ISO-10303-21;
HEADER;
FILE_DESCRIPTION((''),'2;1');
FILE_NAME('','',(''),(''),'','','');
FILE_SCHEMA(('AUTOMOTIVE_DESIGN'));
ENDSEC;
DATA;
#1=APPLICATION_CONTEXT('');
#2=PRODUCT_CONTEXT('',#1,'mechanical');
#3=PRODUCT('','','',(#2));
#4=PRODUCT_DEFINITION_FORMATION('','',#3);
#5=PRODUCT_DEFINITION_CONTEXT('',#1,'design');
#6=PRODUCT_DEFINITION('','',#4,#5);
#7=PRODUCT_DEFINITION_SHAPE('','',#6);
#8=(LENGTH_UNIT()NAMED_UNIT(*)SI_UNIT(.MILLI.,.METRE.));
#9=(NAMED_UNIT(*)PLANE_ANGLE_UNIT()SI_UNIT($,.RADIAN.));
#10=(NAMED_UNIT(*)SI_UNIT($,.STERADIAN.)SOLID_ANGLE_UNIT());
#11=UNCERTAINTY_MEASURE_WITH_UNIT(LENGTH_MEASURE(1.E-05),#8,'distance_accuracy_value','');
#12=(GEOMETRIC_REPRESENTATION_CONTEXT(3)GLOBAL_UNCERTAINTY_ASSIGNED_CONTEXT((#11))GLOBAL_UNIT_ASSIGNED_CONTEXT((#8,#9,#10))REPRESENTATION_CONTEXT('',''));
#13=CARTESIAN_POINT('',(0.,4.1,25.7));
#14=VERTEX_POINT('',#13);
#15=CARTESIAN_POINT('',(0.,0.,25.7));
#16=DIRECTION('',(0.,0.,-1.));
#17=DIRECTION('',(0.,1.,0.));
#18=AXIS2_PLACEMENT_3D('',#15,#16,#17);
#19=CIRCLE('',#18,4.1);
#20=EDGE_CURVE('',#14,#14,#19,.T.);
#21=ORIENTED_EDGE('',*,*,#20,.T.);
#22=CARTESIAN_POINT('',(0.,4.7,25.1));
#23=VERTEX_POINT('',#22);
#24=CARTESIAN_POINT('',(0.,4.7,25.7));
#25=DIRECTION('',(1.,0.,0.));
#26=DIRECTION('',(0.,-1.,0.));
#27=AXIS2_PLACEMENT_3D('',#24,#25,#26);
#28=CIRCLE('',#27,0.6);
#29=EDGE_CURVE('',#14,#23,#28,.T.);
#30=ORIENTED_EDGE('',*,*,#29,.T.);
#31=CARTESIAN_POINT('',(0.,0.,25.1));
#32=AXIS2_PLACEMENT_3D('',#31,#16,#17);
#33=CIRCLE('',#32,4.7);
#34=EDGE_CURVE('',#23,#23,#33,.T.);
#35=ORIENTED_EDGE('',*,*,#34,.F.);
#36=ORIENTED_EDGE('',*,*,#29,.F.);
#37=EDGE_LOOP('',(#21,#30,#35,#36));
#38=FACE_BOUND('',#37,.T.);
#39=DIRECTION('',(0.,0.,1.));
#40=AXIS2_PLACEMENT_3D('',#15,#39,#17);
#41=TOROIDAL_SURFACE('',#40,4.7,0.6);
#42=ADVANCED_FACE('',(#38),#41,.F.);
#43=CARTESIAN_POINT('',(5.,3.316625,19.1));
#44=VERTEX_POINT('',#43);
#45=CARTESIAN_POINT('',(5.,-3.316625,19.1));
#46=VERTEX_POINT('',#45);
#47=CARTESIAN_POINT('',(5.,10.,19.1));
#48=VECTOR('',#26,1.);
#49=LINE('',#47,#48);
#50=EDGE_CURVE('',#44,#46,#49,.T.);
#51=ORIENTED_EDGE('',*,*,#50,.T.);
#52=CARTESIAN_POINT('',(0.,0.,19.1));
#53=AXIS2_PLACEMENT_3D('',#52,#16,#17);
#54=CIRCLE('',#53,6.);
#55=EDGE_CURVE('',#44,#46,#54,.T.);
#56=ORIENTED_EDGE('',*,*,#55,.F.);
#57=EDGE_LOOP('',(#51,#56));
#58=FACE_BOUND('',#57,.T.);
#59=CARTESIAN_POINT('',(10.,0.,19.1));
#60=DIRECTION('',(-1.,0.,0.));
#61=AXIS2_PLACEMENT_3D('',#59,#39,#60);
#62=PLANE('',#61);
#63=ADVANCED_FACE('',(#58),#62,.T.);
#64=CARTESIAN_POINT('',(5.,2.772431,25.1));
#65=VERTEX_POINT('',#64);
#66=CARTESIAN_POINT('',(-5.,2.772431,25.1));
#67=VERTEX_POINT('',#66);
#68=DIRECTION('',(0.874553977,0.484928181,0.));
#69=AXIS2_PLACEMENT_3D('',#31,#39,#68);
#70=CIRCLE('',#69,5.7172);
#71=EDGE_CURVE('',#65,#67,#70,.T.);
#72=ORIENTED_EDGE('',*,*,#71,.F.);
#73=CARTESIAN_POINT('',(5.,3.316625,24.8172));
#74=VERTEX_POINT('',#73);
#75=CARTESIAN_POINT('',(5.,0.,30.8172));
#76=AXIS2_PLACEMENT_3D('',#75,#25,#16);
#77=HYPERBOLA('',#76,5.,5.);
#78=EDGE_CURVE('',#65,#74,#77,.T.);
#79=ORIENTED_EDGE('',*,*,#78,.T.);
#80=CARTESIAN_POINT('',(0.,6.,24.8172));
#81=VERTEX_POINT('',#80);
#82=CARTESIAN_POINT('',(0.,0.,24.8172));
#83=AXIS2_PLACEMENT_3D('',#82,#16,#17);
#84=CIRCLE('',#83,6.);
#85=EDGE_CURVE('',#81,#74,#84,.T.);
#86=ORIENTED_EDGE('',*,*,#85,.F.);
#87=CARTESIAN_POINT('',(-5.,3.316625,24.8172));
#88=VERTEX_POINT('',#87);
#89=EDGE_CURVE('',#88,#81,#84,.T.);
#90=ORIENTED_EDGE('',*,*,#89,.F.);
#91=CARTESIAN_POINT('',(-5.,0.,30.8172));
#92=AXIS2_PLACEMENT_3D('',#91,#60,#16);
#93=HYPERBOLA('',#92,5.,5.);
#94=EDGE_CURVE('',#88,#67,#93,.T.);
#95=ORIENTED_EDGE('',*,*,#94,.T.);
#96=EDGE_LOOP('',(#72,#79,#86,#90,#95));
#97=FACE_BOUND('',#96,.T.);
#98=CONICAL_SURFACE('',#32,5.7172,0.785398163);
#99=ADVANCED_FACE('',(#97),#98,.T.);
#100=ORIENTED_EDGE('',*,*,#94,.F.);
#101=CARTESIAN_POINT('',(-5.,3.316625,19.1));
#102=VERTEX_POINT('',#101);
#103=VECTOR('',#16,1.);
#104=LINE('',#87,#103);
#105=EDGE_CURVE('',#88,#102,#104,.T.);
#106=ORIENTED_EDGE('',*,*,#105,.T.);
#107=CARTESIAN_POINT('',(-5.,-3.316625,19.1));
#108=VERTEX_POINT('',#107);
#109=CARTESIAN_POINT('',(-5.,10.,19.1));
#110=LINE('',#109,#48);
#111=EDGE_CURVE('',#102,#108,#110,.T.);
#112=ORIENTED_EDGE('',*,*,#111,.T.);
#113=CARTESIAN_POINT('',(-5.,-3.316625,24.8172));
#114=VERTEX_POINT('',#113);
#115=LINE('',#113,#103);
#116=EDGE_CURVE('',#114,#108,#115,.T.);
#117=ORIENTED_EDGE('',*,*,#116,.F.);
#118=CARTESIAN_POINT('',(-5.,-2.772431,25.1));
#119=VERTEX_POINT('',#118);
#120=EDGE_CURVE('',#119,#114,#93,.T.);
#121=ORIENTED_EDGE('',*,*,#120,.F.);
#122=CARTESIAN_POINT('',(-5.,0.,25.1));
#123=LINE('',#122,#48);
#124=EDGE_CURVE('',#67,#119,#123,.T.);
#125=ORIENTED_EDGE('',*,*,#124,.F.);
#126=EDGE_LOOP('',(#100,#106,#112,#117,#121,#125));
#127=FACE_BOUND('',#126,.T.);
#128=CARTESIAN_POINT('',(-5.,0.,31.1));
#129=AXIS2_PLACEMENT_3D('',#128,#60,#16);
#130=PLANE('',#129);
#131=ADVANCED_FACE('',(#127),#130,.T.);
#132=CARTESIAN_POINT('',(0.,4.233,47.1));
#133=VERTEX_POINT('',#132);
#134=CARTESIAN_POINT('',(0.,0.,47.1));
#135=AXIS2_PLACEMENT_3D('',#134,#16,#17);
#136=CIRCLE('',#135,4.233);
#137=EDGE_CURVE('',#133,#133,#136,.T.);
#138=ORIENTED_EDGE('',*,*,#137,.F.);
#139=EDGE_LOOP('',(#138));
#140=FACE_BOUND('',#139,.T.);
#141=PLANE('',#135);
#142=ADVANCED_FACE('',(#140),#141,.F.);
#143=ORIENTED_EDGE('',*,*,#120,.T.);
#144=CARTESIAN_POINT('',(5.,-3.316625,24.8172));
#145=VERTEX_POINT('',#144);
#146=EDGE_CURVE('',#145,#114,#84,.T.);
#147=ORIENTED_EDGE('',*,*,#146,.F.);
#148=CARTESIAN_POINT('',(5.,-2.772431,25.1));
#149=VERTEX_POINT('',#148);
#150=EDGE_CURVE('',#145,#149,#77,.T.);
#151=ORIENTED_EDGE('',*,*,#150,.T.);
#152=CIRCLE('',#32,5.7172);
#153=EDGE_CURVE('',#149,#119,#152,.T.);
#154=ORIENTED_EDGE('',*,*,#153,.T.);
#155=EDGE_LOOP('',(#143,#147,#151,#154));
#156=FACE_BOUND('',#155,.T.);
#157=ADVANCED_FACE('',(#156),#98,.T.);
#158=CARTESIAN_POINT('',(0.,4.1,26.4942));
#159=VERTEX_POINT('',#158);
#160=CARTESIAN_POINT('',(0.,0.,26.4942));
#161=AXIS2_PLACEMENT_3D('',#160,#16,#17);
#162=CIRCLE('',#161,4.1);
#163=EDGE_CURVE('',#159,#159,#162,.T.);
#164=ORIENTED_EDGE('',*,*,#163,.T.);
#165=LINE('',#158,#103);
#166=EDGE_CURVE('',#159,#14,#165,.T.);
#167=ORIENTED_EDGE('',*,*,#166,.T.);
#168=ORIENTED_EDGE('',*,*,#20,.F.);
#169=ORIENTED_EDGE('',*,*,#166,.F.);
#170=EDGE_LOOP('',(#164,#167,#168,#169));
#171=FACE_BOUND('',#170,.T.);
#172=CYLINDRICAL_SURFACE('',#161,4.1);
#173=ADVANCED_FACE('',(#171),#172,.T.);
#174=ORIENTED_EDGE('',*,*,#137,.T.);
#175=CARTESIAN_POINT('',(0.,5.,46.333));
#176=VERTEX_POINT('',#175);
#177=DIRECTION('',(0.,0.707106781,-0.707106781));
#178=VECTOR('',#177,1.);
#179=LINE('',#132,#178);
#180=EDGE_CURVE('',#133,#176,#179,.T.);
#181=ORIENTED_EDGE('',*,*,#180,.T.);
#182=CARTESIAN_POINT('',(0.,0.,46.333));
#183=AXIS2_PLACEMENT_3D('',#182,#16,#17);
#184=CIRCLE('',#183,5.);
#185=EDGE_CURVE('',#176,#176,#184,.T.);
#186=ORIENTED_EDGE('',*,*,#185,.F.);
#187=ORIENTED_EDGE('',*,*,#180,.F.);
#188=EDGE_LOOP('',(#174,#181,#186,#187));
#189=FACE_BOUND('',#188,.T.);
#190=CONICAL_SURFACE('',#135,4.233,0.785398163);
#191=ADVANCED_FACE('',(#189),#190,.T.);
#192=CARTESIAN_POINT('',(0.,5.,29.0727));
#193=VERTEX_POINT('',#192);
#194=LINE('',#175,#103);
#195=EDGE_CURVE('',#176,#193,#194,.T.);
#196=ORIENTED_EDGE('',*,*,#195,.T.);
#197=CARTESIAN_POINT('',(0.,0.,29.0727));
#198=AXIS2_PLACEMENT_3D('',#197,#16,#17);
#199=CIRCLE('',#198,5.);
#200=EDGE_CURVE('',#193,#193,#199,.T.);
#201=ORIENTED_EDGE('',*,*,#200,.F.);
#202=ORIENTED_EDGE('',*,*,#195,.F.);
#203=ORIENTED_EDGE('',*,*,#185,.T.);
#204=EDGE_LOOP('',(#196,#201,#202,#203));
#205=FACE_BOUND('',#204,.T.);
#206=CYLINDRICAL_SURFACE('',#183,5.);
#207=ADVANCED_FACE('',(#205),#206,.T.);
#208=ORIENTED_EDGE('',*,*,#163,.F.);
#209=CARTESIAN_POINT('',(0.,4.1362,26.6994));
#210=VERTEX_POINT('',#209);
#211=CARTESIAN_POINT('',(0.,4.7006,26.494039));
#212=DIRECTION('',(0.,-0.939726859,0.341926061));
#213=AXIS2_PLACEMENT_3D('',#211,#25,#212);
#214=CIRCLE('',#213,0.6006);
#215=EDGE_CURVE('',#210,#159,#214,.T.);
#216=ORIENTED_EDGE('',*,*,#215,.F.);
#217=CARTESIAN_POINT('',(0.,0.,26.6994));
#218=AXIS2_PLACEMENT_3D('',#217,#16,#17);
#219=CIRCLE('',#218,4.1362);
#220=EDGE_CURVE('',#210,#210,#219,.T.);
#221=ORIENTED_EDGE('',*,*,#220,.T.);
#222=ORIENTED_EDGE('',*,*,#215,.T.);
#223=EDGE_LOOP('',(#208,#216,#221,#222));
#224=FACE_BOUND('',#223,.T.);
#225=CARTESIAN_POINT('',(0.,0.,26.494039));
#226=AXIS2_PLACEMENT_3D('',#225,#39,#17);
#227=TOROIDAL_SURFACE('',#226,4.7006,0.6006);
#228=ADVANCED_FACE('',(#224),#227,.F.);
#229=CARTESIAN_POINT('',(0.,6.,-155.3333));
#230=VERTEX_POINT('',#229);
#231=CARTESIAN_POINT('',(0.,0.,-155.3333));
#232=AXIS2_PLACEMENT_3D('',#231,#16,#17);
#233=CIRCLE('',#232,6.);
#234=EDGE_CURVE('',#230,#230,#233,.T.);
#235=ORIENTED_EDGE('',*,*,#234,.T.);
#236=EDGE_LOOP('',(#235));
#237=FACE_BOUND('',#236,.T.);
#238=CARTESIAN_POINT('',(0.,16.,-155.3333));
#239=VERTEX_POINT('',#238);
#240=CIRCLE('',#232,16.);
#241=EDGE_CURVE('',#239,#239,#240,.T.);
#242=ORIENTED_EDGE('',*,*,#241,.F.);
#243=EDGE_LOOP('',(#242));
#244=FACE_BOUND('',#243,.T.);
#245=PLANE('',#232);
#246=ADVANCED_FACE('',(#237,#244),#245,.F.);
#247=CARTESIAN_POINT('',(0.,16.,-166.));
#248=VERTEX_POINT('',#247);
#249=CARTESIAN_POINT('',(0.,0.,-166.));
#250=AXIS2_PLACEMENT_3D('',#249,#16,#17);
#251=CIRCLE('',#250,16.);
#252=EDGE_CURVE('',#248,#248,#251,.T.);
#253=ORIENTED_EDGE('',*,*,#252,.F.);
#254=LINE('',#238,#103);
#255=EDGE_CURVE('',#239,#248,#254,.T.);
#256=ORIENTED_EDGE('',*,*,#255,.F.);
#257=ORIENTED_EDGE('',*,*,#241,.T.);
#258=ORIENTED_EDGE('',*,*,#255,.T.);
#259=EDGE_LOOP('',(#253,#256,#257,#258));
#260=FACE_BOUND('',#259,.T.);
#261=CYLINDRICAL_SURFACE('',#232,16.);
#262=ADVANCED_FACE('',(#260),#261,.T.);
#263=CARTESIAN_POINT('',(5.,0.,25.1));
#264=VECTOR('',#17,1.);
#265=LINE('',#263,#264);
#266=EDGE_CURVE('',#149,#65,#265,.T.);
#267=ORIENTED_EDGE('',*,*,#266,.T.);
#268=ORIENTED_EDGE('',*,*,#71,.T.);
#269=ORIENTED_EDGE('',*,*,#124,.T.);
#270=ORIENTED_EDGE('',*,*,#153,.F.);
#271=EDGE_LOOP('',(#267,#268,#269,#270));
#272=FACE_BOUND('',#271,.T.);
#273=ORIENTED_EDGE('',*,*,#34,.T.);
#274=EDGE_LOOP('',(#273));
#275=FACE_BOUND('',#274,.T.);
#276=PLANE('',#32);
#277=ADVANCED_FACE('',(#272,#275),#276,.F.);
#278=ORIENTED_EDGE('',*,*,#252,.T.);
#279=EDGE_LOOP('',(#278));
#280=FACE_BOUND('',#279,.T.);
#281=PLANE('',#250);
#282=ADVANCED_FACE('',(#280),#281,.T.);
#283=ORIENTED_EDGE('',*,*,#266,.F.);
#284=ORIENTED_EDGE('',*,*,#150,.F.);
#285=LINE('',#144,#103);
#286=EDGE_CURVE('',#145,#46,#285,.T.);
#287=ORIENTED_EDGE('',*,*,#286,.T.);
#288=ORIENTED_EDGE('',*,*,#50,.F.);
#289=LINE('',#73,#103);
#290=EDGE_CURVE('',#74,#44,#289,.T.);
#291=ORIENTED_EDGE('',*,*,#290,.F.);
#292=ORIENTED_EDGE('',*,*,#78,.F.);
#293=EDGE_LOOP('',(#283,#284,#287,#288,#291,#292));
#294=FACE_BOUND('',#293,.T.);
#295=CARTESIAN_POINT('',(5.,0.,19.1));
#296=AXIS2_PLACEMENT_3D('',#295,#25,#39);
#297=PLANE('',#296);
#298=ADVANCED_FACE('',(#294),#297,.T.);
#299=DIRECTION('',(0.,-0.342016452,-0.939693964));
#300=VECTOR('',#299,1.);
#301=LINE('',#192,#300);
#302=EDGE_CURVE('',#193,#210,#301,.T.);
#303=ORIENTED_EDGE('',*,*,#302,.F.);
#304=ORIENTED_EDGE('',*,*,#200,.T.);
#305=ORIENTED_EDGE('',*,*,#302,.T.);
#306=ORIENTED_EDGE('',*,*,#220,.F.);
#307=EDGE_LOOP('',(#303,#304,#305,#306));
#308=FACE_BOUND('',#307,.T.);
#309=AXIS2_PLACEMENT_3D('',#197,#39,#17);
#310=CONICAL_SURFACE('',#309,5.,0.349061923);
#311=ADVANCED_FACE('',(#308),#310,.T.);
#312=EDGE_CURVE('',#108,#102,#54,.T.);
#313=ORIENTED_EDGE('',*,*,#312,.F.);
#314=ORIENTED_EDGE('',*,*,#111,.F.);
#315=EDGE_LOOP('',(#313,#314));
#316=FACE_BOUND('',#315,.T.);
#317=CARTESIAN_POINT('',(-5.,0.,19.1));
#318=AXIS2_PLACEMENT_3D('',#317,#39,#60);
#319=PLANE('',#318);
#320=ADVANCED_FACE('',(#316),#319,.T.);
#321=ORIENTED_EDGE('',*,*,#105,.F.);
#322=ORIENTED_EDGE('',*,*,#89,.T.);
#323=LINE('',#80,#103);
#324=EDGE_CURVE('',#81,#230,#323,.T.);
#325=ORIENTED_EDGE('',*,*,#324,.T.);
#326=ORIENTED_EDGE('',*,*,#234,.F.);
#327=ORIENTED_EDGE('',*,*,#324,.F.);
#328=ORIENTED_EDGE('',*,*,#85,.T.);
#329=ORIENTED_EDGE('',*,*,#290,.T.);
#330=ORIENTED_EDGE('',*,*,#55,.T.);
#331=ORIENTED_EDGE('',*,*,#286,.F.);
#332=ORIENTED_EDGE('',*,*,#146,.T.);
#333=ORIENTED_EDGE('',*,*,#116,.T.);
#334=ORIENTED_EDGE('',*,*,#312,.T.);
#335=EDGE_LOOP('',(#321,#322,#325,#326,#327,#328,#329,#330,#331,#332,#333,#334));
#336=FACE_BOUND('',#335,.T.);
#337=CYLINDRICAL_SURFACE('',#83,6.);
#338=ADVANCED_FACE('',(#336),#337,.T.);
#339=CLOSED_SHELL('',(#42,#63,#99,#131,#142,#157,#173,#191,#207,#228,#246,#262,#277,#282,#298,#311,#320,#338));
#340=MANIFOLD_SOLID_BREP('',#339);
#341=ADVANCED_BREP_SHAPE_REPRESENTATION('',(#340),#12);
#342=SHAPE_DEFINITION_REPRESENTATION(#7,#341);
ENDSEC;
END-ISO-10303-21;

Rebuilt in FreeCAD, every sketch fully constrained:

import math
import FreeCAD as App
import Part
import Sketcher

V = App.Vector
Q = App.Units.Quantity


def add_polygon(sketch, points):
    """Adds a closed chain of lines whose ends are joined by coincident constraints."""
    first, n = sketch.GeometryCount, len(points)
    for a, b in zip(points, points[1:] + points[:1]):
        sketch.addGeometry(Part.LineSegment(App.Vector(*a, 0), App.Vector(*b, 0)), False)
    for i in range(n):
        sketch.addConstraint(Sketcher.Constraint("Coincident", first + i, 2, first + (i + 1) % n, 1))

doc = App.newDocument("Part")
body = doc.addObject("PartDesign::Body", "Body")

sketch1 = body.newObject("Sketcher::SketchObject", "Sketch")
sketch1.AttachmentSupport = (doc.getObject("YZ_Plane"), [""])
sketch1.MapMode = "FlatFace"
add_polygon(sketch1, [(0, 25.1), (0, -166), (16, -166), (16, -155.33), (6, -155.33), (6, 24.82), (5.72, 25.1)])
sketch1.addConstraint(Sketcher.Constraint("Vertical", 0))
sketch1.addConstraint(Sketcher.Constraint("Horizontal", 1))
sketch1.addConstraint(Sketcher.Constraint("Vertical", 2))
sketch1.addConstraint(Sketcher.Constraint("Horizontal", 3))
sketch1.addConstraint(Sketcher.Constraint("Vertical", 4))
sketch1.addConstraint(Sketcher.Constraint("Horizontal", 6))
sketch1.addConstraint(Sketcher.Constraint("PointOnObject", 0, 2, -2))
sketch1.addConstraint(Sketcher.Constraint("DistanceX", 1, 1, 1, 2, 16.0))
sketch1.addConstraint(Sketcher.Constraint("DistanceX", 3, 2, 3, 1, 10.0))
sketch1.addConstraint(Sketcher.Constraint("Angle", 5, Q("135 deg")))
sketch1.addConstraint(Sketcher.Constraint("DistanceY", 0, 2, 0, 1, 191.1))
sketch1.addConstraint(Sketcher.Constraint("DistanceY", 0, 2, -1, 1, 166.0))
sketch1.addConstraint(Sketcher.Constraint("Distance", 5, 0.4))
sketch1.addConstraint(Sketcher.Constraint("DistanceY", 2, 1, 2, 2, 10.6667))
revolution = body.newObject("PartDesign::Revolution", "Revolution")
revolution.Profile = sketch1
revolution.ReferenceAxis = (sketch1, ["V_Axis"])
revolution.Angle = 360

sketch2 = body.newObject("Sketcher::SketchObject", "Sketch001")
sketch2.AttachmentSupport = (doc.getObject("XZ_Plane"), [""])
sketch2.MapMode = "FlatFace"
add_polygon(sketch2, [(-10, 19), (-10, 39), (10, 39), (10, 19), (5, 19), (5, 31), (-5, 31), (-5, 19)])
sketch2.addConstraint(Sketcher.Constraint("Vertical", 0))
sketch2.addConstraint(Sketcher.Constraint("Horizontal", 1))
sketch2.addConstraint(Sketcher.Constraint("Vertical", 2))
sketch2.addConstraint(Sketcher.Constraint("Horizontal", 3))
sketch2.addConstraint(Sketcher.Constraint("Vertical", 4))
sketch2.addConstraint(Sketcher.Constraint("Horizontal", 5))
sketch2.addConstraint(Sketcher.Constraint("Vertical", 6))
sketch2.addConstraint(Sketcher.Constraint("Horizontal", 7))
sketch2.addConstraint(Sketcher.Constraint("Symmetric", 3, 2, 6, 2, -2))
sketch2.addConstraint(Sketcher.Constraint("Equal", 3, 7))
sketch2.addConstraint(Sketcher.Constraint("Equal", 1, 0))
sketch2.addConstraint(Sketcher.Constraint("DistanceX", 1, 1, 1, 2, 20.0))
sketch2.addConstraint(Sketcher.Constraint("DistanceX", 3, 2, 3, 1, 5.0))
sketch2.addConstraint(Sketcher.Constraint("DistanceY", 4, 1, 4, 2, 12.0))
sketch2.addConstraint(Sketcher.Constraint("DistanceY", -1, 1, 0, 2, 39.1))
pocket1 = body.newObject("PartDesign::Pocket", "Pocket")
pocket1.Profile = sketch2
pocket1.Length = 20
pocket1.Midplane = True

sketch3 = body.newObject("Sketcher::SketchObject", "Sketch002")
sketch3.AttachmentSupport = (doc.getObject("YZ_Plane"), [""])
sketch3.MapMode = "FlatFace"
sketch3.addGeometry(Part.LineSegment(V(0, 47.1, 0), V(0, 24.5, 0)), False)
sketch3.addGeometry(Part.LineSegment(V(0, 24.5, 0), V(4.7, 24.5, 0)), False)
sketch3.addGeometry(Part.LineSegment(V(4.7, 24.5, 0), V(4.7, 25.1, 0)), False)
sketch3.addGeometry(Part.ArcOfCircle(Part.Circle(V(4.7, 25.7, 0), V(0, 0, 1), 0.6), math.radians(180), math.radians(270)), False)
sketch3.addGeometry(Part.LineSegment(V(4.1, 25.7, 0), V(4.1, 26.49, 0)), False)
sketch3.addGeometry(Part.ArcOfCircle(Part.Circle(V(4.7, 26.49, 0), V(0, 0, 1), 0.6), math.radians(160), math.radians(180)), False)
sketch3.addGeometry(Part.LineSegment(V(4.14, 26.7, 0), V(5, 29.07, 0)), False)
sketch3.addGeometry(Part.LineSegment(V(5, 29.07, 0), V(5, 46.33, 0)), False)
sketch3.addGeometry(Part.LineSegment(V(5, 46.33, 0), V(4.23, 47.1, 0)), False)
sketch3.addGeometry(Part.LineSegment(V(4.23, 47.1, 0), V(0, 47.1, 0)), False)
sketch3.addConstraint(Sketcher.Constraint("Coincident", 0, 2, 1, 1))
sketch3.addConstraint(Sketcher.Constraint("Coincident", 1, 2, 2, 1))
sketch3.addConstraint(Sketcher.Constraint("Coincident", 2, 2, 3, 2))
sketch3.addConstraint(Sketcher.Constraint("Tangent", 3, 1, 4, 1))
sketch3.addConstraint(Sketcher.Constraint("Tangent", 4, 2, 5, 2))
sketch3.addConstraint(Sketcher.Constraint("Tangent", 5, 1, 6, 1))
sketch3.addConstraint(Sketcher.Constraint("Coincident", 6, 2, 7, 1))
sketch3.addConstraint(Sketcher.Constraint("Coincident", 7, 2, 8, 1))
sketch3.addConstraint(Sketcher.Constraint("Coincident", 8, 2, 9, 1))
sketch3.addConstraint(Sketcher.Constraint("Coincident", 9, 2, 0, 1))
sketch3.addConstraint(Sketcher.Constraint("Vertical", 0))
sketch3.addConstraint(Sketcher.Constraint("Horizontal", 1))
sketch3.addConstraint(Sketcher.Constraint("Vertical", 2))
sketch3.addConstraint(Sketcher.Constraint("Vertical", 4))
sketch3.addConstraint(Sketcher.Constraint("Vertical", 7))
sketch3.addConstraint(Sketcher.Constraint("Horizontal", 9))
sketch3.addConstraint(Sketcher.Constraint("Equal", 3, 5))
sketch3.addConstraint(Sketcher.Constraint("PointOnObject", 0, 2, -2))
sketch3.addConstraint(Sketcher.Constraint("Vertical", 5, 3, 1, 2))
sketch3.addConstraint(Sketcher.Constraint("Radius", 3, 0.6))
sketch3.addConstraint(Sketcher.Constraint("Angle", 6, Q("70.0002 deg")))
sketch3.addConstraint(Sketcher.Constraint("Angle", 8, Q("135 deg")))
sketch3.addConstraint(Sketcher.Constraint("DistanceX", 1, 1, 1, 2, 4.7))
sketch3.addConstraint(Sketcher.Constraint("DistanceY", 0, 2, 0, 1, 22.6))
sketch3.addConstraint(Sketcher.Constraint("DistanceY", 2, 1, 2, 2, 0.6))
sketch3.addConstraint(Sketcher.Constraint("DistanceX", -1, 1, 6, 2, 5.0))
sketch3.addConstraint(Sketcher.Constraint("DistanceY", -1, 1, 3, 3, 25.7))
sketch3.addConstraint(Sketcher.Constraint("DistanceX", 9, 2, 9, 1, 4.233))
sketch3.addConstraint(Sketcher.Constraint("DistanceY", 4, 1, 4, 2, 0.7942))
revolution2 = body.newObject("PartDesign::Revolution", "Revolution001")
revolution2.Profile = sketch3
revolution2.ReferenceAxis = (sketch3, ["V_Axis"])
revolution2.Angle = 360

doc.recompute()
